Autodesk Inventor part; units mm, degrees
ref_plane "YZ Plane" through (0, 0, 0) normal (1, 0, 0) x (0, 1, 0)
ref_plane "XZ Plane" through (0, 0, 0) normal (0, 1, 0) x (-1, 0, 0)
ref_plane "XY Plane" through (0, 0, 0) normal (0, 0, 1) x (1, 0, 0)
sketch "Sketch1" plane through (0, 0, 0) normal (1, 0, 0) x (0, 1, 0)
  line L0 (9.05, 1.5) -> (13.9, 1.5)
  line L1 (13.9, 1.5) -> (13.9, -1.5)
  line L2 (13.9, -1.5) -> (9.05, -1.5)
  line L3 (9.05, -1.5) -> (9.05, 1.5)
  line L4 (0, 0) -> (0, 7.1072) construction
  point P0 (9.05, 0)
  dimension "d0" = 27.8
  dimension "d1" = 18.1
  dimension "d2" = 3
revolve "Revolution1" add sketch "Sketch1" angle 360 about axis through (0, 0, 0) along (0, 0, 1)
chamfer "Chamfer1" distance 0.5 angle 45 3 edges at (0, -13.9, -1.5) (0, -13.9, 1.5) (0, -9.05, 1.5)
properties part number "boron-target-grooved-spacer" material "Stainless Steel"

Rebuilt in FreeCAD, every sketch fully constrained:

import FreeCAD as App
import Part
import Sketcher

V = App.Vector


def edges_at(feature, points):
    """Names of the edges that pass closest to the given points."""
    edges = feature.Shape.Edges
    near = lambda p: min(range(len(edges)), key=lambda i: edges[i].distToShape(Part.Vertex(*p))[0])
    return sorted({f"Edge{near(p) + 1}" for p in points})

doc = App.newDocument("Part")
body = doc.addObject("PartDesign::Body", "Body")

sketch1 = doc.addObject("Sketcher::SketchObject", "Sketch")
body.addObject(sketch1)
sketch1.AttachmentSupport = (doc.YZ_Plane, [""])
sketch1.MapMode = "FlatFace"
sketch1.addGeometry(Part.LineSegment(V(13.9, 1.5, 0), V(9.05, 1.5, 0)), False)
sketch1.addGeometry(Part.LineSegment(V(9.05, 1.5, 0), V(9.05, -1.5, 0)), False)
sketch1.addGeometry(Part.LineSegment(V(9.05, -1.5, 0), V(13.9, -1.5, 0)), False)
sketch1.addGeometry(Part.LineSegment(V(13.9, -1.5, 0), V(13.9, 1.5, 0)), False)
sketch1.addConstraint(Sketcher.Constraint("Coincident", 0, 2, 1, 1))
sketch1.addConstraint(Sketcher.Constraint("Coincident", 1, 2, 2, 1))
sketch1.addConstraint(Sketcher.Constraint("Coincident", 2, 2, 3, 1))
sketch1.addConstraint(Sketcher.Constraint("Coincident", 3, 2, 0, 1))
sketch1.addConstraint(Sketcher.Constraint("Horizontal", 0))
sketch1.addConstraint(Sketcher.Constraint("Vertical", 1))
sketch1.addConstraint(Sketcher.Constraint("Horizontal", 2))
sketch1.addConstraint(Sketcher.Constraint("Vertical", 3))
sketch1.addConstraint(Sketcher.Constraint("DistanceY", 1, 2, 1, 1, 3.0))
sketch1.addConstraint(Sketcher.Constraint("DistanceX", 0, 2, 0, 1, 4.85))
sketch1.addConstraint(Sketcher.Constraint("DistanceY", -1, 1, 0, 2, 1.5))
sketch1.addConstraint(Sketcher.Constraint("DistanceX", -1, 1, 2, 2, 13.9))
revolution = doc.addObject("PartDesign::Revolution", "Revolution")
body.addObject(revolution)
revolution.Profile = sketch1
revolution.ReferenceAxis = (sketch1, ["V_Axis"])
revolution.Angle = 360
doc.recompute()

chamfer = doc.addObject("PartDesign::Chamfer", "Chamfer")
body.addObject(chamfer)
chamfer.Base = (revolution, edges_at(revolution, [(0, -13.9, -1.5), (0, -13.9, 1.5), (0, -9.05, 1.5)]))
chamfer.Size = 0.5

doc.recompute()
